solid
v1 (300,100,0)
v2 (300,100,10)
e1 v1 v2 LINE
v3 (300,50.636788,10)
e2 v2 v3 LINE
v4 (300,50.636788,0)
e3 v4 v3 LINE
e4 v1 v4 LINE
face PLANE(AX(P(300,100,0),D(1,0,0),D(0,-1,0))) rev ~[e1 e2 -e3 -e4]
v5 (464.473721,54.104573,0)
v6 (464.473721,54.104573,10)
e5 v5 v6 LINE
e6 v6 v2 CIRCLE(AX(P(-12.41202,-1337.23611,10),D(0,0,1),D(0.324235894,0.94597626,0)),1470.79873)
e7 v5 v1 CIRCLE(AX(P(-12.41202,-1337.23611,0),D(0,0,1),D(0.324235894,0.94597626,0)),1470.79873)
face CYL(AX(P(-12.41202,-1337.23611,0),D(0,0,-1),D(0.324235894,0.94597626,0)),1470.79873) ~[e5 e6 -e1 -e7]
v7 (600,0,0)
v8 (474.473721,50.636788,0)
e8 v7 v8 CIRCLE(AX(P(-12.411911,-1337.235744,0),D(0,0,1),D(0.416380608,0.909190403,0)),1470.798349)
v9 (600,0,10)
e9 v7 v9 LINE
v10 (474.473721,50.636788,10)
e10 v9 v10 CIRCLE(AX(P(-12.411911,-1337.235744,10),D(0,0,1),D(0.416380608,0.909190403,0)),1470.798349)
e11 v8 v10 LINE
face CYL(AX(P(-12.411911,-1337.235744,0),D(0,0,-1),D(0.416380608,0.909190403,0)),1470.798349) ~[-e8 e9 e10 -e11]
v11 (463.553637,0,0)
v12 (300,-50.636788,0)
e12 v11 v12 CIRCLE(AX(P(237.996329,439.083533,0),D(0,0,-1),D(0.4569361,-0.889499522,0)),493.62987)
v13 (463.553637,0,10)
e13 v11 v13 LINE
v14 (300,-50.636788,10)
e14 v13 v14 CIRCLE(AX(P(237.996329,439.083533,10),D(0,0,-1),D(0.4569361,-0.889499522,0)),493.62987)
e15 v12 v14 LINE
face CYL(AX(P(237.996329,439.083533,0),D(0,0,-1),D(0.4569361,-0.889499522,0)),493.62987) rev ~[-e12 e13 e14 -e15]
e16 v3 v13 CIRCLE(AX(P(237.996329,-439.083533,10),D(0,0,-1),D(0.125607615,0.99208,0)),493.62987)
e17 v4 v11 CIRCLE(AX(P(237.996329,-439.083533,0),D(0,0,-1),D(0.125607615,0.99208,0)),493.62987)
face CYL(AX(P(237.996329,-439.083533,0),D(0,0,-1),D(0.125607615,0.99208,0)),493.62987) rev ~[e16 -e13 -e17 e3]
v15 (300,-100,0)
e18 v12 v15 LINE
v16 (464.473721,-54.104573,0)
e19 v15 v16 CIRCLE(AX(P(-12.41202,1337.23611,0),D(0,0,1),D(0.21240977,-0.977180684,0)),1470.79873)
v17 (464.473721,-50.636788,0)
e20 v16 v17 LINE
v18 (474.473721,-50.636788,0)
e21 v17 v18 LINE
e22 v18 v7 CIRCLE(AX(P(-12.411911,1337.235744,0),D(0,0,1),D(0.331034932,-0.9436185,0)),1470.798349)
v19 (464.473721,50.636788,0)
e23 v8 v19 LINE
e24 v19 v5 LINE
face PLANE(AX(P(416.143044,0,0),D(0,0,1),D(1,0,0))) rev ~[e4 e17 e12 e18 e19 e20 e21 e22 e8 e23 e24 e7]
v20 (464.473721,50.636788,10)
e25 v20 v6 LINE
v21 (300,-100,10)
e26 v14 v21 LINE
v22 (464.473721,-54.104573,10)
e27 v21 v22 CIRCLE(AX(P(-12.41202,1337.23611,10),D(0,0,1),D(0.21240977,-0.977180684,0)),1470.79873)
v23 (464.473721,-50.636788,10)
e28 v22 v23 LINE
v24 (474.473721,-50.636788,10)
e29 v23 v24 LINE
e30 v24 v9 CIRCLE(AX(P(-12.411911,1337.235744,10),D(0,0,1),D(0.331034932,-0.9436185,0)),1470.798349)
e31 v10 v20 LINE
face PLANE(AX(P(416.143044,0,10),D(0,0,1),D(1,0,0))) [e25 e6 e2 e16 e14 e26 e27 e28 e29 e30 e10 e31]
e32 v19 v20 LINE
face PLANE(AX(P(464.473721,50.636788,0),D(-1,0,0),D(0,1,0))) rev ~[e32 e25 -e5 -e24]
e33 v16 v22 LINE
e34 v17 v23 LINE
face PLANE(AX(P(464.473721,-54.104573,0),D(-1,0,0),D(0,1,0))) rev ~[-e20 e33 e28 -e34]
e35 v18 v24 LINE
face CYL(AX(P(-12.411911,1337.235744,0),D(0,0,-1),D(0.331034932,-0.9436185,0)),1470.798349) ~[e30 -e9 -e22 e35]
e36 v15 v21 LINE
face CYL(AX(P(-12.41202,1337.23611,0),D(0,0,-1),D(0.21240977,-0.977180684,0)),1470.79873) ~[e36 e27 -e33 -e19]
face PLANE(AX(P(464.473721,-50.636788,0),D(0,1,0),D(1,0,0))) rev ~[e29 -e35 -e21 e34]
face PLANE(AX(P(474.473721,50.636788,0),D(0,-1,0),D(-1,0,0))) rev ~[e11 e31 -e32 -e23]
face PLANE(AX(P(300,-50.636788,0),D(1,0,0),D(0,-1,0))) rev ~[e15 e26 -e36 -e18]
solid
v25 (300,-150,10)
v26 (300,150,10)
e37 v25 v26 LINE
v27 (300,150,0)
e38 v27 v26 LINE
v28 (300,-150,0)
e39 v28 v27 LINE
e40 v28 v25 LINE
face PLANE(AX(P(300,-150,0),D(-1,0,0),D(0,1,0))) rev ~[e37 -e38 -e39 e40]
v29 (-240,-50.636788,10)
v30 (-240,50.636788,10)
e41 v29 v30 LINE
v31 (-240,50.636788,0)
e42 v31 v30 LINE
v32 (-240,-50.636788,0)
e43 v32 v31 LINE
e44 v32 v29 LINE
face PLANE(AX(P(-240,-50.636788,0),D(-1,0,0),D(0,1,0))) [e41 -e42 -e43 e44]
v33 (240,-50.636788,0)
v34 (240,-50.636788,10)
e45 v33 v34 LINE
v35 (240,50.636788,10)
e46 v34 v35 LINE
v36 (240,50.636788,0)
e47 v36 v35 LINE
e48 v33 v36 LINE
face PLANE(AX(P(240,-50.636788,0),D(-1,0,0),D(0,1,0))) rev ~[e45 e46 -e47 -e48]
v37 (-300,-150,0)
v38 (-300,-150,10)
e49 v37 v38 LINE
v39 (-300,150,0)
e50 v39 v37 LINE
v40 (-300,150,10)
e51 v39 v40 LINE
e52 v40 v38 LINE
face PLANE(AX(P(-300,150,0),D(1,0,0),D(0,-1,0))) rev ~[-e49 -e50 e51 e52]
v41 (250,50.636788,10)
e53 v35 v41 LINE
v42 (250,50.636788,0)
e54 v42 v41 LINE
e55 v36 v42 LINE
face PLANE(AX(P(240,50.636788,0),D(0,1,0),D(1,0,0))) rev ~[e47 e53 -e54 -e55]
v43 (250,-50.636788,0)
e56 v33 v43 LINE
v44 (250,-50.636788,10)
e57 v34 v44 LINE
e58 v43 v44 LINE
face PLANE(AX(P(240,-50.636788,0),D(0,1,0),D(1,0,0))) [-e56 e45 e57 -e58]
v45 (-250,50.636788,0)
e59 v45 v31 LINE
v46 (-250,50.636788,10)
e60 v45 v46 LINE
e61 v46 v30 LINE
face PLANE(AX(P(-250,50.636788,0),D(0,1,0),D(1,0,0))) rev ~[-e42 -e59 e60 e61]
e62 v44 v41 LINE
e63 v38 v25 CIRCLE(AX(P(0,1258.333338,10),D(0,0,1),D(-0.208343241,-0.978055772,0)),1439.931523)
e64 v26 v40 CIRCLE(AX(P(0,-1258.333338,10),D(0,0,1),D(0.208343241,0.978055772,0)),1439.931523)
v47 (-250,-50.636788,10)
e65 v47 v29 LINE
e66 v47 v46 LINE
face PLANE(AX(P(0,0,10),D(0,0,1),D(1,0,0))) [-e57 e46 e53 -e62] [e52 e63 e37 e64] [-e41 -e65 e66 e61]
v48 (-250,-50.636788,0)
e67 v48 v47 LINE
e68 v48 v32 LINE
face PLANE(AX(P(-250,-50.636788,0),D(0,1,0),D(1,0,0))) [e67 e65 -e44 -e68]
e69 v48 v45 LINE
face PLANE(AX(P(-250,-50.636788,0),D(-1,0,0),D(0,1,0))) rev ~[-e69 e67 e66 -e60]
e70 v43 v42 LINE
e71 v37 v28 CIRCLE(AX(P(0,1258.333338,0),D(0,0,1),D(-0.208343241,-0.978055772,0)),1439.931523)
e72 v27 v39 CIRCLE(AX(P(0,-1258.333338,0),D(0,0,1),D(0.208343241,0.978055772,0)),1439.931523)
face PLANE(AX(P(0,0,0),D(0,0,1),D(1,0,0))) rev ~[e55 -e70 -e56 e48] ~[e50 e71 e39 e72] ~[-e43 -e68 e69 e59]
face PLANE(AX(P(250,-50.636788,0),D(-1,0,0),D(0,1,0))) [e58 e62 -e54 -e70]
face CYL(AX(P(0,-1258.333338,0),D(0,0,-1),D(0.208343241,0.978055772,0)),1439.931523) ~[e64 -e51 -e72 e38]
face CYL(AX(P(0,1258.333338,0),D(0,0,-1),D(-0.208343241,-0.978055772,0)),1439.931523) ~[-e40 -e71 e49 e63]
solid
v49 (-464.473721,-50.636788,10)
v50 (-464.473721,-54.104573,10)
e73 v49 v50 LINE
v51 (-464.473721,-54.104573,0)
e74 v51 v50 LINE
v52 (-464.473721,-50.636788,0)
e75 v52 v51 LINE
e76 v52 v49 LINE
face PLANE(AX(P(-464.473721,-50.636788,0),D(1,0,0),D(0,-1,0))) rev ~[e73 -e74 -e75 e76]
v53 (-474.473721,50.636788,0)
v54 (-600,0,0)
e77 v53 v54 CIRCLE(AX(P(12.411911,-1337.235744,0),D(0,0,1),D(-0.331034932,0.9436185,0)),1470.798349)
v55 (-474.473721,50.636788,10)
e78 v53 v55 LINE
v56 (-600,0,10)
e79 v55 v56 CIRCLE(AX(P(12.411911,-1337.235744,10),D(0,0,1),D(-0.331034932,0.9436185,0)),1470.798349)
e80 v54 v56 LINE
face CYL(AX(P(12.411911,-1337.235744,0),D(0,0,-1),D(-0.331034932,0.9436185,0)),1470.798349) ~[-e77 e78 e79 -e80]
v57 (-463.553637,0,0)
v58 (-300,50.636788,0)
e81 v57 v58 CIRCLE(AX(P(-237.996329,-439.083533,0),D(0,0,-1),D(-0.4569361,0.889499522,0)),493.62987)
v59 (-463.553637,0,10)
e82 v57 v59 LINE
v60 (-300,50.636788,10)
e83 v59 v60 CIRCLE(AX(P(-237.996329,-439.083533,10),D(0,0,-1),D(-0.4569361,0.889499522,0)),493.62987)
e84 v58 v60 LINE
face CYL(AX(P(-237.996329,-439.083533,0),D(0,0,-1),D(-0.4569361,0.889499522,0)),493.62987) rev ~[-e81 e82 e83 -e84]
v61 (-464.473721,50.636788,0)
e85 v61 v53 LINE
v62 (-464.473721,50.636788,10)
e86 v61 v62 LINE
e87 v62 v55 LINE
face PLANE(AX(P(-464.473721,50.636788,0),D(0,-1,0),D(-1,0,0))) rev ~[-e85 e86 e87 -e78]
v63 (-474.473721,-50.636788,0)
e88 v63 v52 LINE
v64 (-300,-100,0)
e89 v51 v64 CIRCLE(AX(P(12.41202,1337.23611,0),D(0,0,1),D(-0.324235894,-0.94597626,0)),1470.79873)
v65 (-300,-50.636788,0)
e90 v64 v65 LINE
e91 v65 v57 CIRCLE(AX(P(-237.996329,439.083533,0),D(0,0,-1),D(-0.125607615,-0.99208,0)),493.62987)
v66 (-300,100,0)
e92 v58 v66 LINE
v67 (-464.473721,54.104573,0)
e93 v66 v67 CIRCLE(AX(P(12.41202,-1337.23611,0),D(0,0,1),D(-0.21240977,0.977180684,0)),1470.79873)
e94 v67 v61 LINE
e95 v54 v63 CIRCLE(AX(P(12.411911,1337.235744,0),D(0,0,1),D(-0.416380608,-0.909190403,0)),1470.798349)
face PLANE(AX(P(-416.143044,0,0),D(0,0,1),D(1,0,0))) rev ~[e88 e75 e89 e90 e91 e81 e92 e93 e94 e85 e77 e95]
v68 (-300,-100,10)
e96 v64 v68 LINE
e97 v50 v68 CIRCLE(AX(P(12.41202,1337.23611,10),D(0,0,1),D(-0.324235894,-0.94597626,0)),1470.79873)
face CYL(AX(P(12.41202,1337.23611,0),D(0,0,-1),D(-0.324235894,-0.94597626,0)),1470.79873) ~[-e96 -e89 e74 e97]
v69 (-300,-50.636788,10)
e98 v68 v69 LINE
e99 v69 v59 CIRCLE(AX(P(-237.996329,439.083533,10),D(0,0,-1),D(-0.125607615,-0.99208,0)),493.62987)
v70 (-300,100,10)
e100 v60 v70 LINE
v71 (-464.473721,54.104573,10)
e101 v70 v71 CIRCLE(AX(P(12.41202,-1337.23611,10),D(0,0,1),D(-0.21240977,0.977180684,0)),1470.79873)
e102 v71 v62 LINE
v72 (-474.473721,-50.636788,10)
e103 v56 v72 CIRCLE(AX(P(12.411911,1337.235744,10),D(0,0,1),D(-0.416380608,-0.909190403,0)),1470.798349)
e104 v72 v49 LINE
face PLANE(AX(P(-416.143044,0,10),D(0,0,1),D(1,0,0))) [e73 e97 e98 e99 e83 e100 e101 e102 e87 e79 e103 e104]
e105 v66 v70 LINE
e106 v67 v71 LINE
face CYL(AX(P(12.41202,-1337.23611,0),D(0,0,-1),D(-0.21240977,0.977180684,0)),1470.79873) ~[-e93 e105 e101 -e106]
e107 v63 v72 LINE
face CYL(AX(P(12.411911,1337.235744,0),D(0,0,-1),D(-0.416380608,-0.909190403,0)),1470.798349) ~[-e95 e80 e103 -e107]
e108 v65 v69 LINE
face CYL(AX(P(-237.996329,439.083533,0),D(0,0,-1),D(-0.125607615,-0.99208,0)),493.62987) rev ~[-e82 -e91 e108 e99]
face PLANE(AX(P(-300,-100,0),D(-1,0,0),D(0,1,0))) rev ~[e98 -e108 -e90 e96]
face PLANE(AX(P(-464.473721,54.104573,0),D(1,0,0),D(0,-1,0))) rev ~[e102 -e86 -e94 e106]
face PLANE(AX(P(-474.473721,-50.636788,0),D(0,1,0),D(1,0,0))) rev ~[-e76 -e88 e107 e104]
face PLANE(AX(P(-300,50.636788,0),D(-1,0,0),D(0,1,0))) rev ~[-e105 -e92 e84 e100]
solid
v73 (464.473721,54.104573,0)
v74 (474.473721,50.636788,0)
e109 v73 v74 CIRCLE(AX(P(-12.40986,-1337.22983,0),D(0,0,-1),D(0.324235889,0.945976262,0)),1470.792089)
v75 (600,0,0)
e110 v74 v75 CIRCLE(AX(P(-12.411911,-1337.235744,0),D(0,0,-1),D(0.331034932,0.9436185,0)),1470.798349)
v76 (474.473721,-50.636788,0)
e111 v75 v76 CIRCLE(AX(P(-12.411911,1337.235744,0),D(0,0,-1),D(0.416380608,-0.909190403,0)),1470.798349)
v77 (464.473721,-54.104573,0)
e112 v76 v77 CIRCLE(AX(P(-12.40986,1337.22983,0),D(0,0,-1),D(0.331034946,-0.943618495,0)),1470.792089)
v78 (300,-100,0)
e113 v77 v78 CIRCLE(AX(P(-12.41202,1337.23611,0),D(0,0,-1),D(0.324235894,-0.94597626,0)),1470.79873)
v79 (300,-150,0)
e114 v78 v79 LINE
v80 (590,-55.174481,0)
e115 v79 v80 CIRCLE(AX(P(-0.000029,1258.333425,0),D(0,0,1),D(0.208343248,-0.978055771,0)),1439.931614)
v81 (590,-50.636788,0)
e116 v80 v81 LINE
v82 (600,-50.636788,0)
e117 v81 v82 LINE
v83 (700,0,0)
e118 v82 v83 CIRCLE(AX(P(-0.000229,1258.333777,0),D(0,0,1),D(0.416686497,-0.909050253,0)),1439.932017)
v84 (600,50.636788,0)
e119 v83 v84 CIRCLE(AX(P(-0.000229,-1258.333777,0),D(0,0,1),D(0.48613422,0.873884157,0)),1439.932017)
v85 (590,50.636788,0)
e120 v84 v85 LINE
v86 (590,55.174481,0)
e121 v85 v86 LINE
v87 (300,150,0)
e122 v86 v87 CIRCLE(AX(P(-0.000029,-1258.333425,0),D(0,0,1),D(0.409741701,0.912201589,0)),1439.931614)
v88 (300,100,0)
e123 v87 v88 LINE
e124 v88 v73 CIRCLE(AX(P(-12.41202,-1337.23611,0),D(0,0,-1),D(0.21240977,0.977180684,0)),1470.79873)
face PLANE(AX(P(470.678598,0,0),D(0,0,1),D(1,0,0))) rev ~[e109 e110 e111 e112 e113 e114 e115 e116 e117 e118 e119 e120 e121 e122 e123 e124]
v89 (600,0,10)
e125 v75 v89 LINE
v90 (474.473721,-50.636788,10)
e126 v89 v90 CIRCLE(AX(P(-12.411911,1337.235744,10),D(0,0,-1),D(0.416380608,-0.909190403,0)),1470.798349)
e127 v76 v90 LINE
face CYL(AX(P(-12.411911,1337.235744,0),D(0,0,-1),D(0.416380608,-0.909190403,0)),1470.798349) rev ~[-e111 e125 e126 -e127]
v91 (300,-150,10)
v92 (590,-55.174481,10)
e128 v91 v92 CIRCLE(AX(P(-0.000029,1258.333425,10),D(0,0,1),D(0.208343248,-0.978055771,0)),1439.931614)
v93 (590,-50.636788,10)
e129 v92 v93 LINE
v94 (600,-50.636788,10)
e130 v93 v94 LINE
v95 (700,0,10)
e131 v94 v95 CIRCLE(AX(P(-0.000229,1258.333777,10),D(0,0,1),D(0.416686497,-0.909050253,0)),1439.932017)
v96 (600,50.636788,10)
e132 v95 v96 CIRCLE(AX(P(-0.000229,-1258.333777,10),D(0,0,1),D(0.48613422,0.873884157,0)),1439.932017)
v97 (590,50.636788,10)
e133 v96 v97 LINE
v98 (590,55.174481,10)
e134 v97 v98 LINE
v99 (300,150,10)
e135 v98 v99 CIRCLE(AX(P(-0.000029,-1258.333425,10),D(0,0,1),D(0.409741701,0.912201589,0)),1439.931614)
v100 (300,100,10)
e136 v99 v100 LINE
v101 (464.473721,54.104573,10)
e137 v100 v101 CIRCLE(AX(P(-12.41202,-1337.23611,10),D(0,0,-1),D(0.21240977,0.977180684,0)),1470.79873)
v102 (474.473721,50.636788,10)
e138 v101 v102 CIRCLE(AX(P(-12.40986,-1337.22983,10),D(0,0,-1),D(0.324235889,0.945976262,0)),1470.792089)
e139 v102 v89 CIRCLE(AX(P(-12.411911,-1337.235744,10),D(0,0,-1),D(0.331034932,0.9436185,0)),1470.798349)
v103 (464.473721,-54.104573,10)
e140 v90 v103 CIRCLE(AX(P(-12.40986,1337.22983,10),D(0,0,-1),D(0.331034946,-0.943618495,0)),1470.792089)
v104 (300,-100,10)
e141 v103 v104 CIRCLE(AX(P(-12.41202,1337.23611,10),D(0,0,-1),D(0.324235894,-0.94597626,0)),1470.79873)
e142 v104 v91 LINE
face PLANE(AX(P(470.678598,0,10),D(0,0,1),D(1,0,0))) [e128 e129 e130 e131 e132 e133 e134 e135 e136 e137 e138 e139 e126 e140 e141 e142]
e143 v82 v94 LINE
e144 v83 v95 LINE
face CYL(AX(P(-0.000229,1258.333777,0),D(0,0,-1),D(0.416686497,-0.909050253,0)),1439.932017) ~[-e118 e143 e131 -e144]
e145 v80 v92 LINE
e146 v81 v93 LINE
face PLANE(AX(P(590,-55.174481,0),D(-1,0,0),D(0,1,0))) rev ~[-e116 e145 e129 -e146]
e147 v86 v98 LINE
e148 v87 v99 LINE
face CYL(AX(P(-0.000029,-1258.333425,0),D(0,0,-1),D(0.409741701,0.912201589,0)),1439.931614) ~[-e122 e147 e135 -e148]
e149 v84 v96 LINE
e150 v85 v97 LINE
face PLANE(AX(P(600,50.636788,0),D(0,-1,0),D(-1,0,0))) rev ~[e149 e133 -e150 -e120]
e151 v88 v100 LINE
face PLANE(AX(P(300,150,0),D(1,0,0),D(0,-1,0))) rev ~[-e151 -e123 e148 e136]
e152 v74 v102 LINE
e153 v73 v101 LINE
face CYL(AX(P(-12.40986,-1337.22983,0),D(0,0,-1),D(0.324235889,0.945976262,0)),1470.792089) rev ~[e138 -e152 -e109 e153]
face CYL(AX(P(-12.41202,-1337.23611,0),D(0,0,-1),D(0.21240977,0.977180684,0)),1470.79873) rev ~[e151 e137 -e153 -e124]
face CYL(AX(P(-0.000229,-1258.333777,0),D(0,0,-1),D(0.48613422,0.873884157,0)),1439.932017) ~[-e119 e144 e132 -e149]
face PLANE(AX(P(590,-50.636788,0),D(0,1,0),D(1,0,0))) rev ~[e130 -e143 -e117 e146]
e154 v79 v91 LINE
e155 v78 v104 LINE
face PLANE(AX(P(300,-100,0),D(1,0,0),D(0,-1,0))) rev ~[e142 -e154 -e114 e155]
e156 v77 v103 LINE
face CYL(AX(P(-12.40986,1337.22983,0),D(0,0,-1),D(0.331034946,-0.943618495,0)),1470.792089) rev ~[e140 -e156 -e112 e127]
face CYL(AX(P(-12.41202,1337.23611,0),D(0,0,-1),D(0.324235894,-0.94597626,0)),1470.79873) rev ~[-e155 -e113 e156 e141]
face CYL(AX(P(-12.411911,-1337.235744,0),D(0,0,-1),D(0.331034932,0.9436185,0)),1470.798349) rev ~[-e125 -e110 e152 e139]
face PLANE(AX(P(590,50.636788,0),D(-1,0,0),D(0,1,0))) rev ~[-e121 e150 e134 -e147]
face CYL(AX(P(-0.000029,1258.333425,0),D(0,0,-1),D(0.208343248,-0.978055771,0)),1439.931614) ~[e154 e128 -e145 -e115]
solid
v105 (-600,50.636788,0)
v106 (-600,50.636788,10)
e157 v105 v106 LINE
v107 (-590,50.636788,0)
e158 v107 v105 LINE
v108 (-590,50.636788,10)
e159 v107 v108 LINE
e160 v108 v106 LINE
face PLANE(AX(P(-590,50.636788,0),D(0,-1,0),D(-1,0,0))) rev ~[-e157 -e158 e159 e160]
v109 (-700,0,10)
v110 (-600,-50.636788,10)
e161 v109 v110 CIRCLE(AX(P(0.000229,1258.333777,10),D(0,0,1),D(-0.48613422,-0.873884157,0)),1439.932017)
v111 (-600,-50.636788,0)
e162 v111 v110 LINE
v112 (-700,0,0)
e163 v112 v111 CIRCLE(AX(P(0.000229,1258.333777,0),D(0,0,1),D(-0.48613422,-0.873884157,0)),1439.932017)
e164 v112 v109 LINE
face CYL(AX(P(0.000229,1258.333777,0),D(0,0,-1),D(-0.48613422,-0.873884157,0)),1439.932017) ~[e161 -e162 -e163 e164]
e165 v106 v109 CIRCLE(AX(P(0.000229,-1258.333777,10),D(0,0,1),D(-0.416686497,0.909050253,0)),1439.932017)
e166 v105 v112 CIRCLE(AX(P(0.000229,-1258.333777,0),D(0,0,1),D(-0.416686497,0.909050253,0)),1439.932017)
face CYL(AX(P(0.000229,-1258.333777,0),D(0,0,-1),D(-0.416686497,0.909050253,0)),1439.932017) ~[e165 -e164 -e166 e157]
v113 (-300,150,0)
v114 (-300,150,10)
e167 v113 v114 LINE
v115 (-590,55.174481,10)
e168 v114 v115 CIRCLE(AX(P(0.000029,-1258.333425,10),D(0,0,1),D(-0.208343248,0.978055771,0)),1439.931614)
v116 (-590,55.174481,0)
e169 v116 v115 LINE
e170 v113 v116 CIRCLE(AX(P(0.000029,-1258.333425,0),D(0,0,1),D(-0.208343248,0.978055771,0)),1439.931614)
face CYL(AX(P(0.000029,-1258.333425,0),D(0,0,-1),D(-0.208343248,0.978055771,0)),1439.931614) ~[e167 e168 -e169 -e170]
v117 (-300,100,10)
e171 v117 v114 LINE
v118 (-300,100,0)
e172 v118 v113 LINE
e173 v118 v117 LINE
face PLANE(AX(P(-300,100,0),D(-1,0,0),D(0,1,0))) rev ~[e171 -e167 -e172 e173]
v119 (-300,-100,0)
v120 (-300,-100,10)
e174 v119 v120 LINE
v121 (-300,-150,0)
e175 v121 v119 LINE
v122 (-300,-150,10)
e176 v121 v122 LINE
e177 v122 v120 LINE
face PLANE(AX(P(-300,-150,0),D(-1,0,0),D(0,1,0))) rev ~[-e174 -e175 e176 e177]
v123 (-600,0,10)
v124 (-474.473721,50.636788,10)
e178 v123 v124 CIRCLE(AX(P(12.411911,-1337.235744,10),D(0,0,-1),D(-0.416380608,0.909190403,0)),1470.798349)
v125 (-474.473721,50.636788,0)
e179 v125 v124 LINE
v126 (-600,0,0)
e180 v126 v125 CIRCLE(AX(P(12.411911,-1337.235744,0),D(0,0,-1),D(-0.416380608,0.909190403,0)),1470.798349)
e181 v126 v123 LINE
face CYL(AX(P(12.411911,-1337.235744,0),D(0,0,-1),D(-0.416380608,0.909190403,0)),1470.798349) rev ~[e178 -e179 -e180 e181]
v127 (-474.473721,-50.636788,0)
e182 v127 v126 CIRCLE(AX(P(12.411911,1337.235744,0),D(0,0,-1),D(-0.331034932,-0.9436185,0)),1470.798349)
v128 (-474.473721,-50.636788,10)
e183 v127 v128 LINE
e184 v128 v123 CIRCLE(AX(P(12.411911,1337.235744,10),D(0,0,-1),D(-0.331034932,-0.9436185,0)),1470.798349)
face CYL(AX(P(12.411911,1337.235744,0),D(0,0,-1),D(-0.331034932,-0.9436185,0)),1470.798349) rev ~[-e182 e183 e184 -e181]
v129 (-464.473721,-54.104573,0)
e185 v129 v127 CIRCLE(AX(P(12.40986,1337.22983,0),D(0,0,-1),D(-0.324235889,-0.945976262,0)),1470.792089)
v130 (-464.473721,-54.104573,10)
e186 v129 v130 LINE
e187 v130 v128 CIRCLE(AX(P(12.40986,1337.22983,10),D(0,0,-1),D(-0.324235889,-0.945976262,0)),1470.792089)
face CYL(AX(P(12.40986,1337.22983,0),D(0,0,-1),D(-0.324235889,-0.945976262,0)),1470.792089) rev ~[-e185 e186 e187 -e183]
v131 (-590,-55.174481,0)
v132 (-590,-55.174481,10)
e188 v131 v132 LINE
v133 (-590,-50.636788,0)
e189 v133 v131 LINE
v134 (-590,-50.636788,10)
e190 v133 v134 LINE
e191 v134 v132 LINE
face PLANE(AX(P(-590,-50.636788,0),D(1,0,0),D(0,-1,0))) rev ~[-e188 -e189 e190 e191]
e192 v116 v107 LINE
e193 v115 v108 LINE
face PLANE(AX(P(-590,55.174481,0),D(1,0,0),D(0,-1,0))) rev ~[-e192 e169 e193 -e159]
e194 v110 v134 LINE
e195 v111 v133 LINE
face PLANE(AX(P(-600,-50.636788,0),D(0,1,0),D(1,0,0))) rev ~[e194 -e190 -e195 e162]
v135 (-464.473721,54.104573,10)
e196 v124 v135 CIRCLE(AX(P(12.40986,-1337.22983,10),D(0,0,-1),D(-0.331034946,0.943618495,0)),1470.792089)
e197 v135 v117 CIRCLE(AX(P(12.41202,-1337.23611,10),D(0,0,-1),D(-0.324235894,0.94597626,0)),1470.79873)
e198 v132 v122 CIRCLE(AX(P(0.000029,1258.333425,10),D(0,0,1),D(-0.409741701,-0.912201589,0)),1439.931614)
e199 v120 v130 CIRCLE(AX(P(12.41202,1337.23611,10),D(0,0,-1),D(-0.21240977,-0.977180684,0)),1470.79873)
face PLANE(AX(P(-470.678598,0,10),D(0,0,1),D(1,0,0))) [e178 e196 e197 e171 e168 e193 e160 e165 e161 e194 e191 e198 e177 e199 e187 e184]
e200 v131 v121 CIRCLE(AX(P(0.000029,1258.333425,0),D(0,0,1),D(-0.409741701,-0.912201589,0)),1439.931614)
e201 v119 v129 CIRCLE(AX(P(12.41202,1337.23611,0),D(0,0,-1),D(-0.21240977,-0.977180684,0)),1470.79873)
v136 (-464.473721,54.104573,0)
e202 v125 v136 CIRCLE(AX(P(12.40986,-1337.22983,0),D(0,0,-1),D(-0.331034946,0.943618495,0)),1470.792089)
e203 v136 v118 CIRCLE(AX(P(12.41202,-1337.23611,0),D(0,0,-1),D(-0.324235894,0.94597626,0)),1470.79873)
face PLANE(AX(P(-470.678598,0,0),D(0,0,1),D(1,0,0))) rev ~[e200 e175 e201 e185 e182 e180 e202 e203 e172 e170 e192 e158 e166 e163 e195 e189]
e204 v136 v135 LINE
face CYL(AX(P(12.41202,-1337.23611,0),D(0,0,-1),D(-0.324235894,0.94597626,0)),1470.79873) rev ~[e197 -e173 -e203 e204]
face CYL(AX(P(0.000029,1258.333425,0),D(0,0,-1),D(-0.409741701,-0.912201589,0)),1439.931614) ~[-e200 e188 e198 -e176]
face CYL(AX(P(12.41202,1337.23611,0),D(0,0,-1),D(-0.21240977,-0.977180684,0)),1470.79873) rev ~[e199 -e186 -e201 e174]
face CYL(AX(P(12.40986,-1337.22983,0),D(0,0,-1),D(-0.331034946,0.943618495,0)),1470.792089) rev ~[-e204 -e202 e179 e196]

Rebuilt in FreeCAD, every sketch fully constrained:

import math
import FreeCAD as App
import Part
import Sketcher
Q = App.Units.Quantity

doc = App.newDocument("Part")
body = doc.addObject("PartDesign::Body", "Body")
body.AllowCompound = True

sketch1 = body.newObject("Sketcher::SketchObject", "Sketch")
sketch1.AttachmentSupport = (doc.getObject("XY_Plane"), [""])
sketch1.MapMode = "FlatFace"
sketch1.addGeometry(Part.ArcOfCircle(Part.Circle(App.Vector(-0.000029, -1258.333425, 0), App.Vector(0, 0, 1), 1439.931614), math.radians(65.81139), math.radians(77.97472)), False)
sketch1.addGeometry(Part.LineSegment(App.Vector(300, 150, 0), App.Vector(300, 100, 0)), False)
sketch1.addGeometry(Part.ArcOfCircle(Part.Circle(App.Vector(-12.41202, -1337.23611, 0), App.Vector(0, 0, 1), 1470.79873), math.radians(71.080712), math.radians(77.736392)), False)
sketch1.addGeometry(Part.ArcOfCircle(Part.Circle(App.Vector(-12.40986, -1337.22983, 0), App.Vector(0, 0, 1), 1470.792089), math.radians(70.668395), math.radians(71.080712)), False)
sketch1.addGeometry(Part.ArcOfCircle(Part.Circle(App.Vector(-12.411911, -1337.235744, 0), App.Vector(0, 0, 1), 1470.798349), math.radians(65.39371), math.radians(70.668396)), False)
sketch1.addGeometry(Part.ArcOfCircle(Part.Circle(App.Vector(-12.411911, 1337.235744, 0), App.Vector(0, 0, 1), 1470.798349), math.radians(-70.668396), math.radians(-65.39371)), False)
sketch1.addGeometry(Part.ArcOfCircle(Part.Circle(App.Vector(-12.40986, 1337.22983, 0), App.Vector(0, 0, 1), 1470.792089), math.radians(-71.080712), math.radians(-70.668395)), False)
sketch1.addGeometry(Part.ArcOfCircle(Part.Circle(App.Vector(-12.41202, 1337.23611, 0), App.Vector(0, 0, 1), 1470.79873), math.radians(-77.736392), math.radians(-71.080712)), False)
sketch1.addGeometry(Part.LineSegment(App.Vector(300, -100, 0), App.Vector(300, -150, 0)), False)
sketch1.addGeometry(Part.ArcOfCircle(Part.Circle(App.Vector(-0.000029, 1258.333425, 0), App.Vector(0, 0, 1), 1439.931614), math.radians(-77.97472), math.radians(-65.81139)), False)
sketch1.addGeometry(Part.LineSegment(App.Vector(590, -55.174481, 0), App.Vector(590, -50.636788, 0)), False)
sketch1.addGeometry(Part.LineSegment(App.Vector(590, -50.636788, 0), App.Vector(600, -50.636788, 0)), False)
sketch1.addGeometry(Part.ArcOfCircle(Part.Circle(App.Vector(-0.000229, 1258.333777, 0), App.Vector(0, 0, 1), 1439.932017), math.radians(-65.374432), math.radians(-60.91319)), False)
sketch1.addGeometry(Part.ArcOfCircle(Part.Circle(App.Vector(-0.000229, -1258.333777, 0), App.Vector(0, 0, 1), 1439.932017), math.radians(60.91319), math.radians(65.374432)), False)
sketch1.addGeometry(Part.LineSegment(App.Vector(600, 50.636788, 0), App.Vector(590, 50.636788, 0)), False)
sketch1.addGeometry(Part.LineSegment(App.Vector(590, 50.636788, 0), App.Vector(590, 55.174481, 0)), False)
sketch1.addGeometry(Part.LineSegment(App.Vector(-300, 100, 0), App.Vector(-300, 150, 0)), False)
sketch1.addGeometry(Part.ArcOfCircle(Part.Circle(App.Vector(0.000029, -1258.333425, 0), App.Vector(0, 0, 1), 1439.931614), math.radians(102.02528), math.radians(114.18861)), False)
sketch1.addGeometry(Part.LineSegment(App.Vector(-590, 55.174481, 0), App.Vector(-590, 50.636788, 0)), False)
sketch1.addGeometry(Part.LineSegment(App.Vector(-590, 50.636788, 0), App.Vector(-600, 50.636788, 0)), False)
sketch1.addGeometry(Part.ArcOfCircle(Part.Circle(App.Vector(0.000229, -1258.333777, 0), App.Vector(0, 0, 1), 1439.932017), math.radians(114.625568), math.radians(119.08681)), False)
sketch1.addGeometry(Part.ArcOfCircle(Part.Circle(App.Vector(0.000229, 1258.333777, 0), App.Vector(0, 0, 1), 1439.932017), math.radians(-119.08681), math.radians(-114.625568)), False)
sketch1.addGeometry(Part.LineSegment(App.Vector(-600, -50.636788, 0), App.Vector(-590, -50.636788, 0)), False)
sketch1.addGeometry(Part.LineSegment(App.Vector(-590, -50.636788, 0), App.Vector(-590, -55.174481, 0)), False)
sketch1.addGeometry(Part.ArcOfCircle(Part.Circle(App.Vector(0.000029, 1258.333425, 0), App.Vector(0, 0, 1), 1439.931614), math.radians(-114.18861), math.radians(-102.02528)), False)
sketch1.addGeometry(Part.LineSegment(App.Vector(-300, -150, 0), App.Vector(-300, -100, 0)), False)
sketch1.addGeometry(Part.ArcOfCircle(Part.Circle(App.Vector(12.41202, 1337.23611, 0), App.Vector(0, 0, 1), 1470.79873), math.radians(-108.919288), math.radians(-102.263608)), False)
sketch1.addGeometry(Part.ArcOfCircle(Part.Circle(App.Vector(12.40986, 1337.22983, 0), App.Vector(0, 0, 1), 1470.792089), math.radians(-109.331605), math.radians(-108.919288)), False)
sketch1.addGeometry(Part.ArcOfCircle(Part.Circle(App.Vector(12.411911, 1337.235744, 0), App.Vector(0, 0, 1), 1470.798349), math.radians(-114.60629), math.radians(-109.331604)), False)
sketch1.addGeometry(Part.ArcOfCircle(Part.Circle(App.Vector(12.411911, -1337.235744, 0), App.Vector(0, 0, 1), 1470.798349), math.radians(109.331604), math.radians(114.60629)), False)
sketch1.addGeometry(Part.ArcOfCircle(Part.Circle(App.Vector(12.40986, -1337.22983, 0), App.Vector(0, 0, 1), 1470.792089), math.radians(108.919288), math.radians(109.331605)), False)
sketch1.addGeometry(Part.ArcOfCircle(Part.Circle(App.Vector(12.41202, -1337.23611, 0), App.Vector(0, 0, 1), 1470.79873), math.radians(102.263608), math.radians(108.919288)), False)
sketch1.addConstraint(Sketcher.Constraint("Coincident", 0, 2, 1, 1))
sketch1.addConstraint(Sketcher.Constraint("Coincident", 1, 2, 2, 2))
sketch1.addConstraint(Sketcher.Constraint("Coincident", 2, 1, 3, 2))
sketch1.addConstraint(Sketcher.Constraint("Coincident", 3, 1, 4, 2))
sketch1.addConstraint(Sketcher.Constraint("Coincident", 4, 1, 5, 2))
sketch1.addConstraint(Sketcher.Constraint("Coincident", 5, 1, 6, 2))
sketch1.addConstraint(Sketcher.Constraint("Coincident", 6, 1, 7, 2))
sketch1.addConstraint(Sketcher.Constraint("Coincident", 7, 1, 8, 1))
sketch1.addConstraint(Sketcher.Constraint("Coincident", 8, 2, 9, 1))
sketch1.addConstraint(Sketcher.Constraint("Coincident", 9, 2, 10, 1))
sketch1.addConstraint(Sketcher.Constraint("Coincident", 10, 2, 11, 1))
sketch1.addConstraint(Sketcher.Constraint("Coincident", 11, 2, 12, 1))
sketch1.addConstraint(Sketcher.Constraint("Coincident", 12, 2, 13, 1))
sketch1.addConstraint(Sketcher.Constraint("Coincident", 13, 2, 14, 1))
sketch1.addConstraint(Sketcher.Constraint("Coincident", 14, 2, 15, 1))
sketch1.addConstraint(Sketcher.Constraint("Coincident", 15, 2, 0, 1))
sketch1.addConstraint(Sketcher.Constraint("Coincident", 16, 2, 17, 1))
sketch1.addConstraint(Sketcher.Constraint("Coincident", 17, 2, 18, 1))
sketch1.addConstraint(Sketcher.Constraint("Coincident", 18, 2, 19, 1))
sketch1.addConstraint(Sketcher.Constraint("Coincident", 19, 2, 20, 1))
sketch1.addConstraint(Sketcher.Constraint("Coincident", 20, 2, 21, 1))
sketch1.addConstraint(Sketcher.Constraint("Coincident", 21, 2, 22, 1))
sketch1.addConstraint(Sketcher.Constraint("Coincident", 22, 2, 23, 1))
sketch1.addConstraint(Sketcher.Constraint("Coincident", 23, 2, 24, 1))
sketch1.addConstraint(Sketcher.Constraint("Coincident", 24, 2, 25, 1))
sketch1.addConstraint(Sketcher.Constraint("Coincident", 25, 2, 26, 2))
sketch1.addConstraint(Sketcher.Constraint("Coincident", 26, 1, 27, 2))
sketch1.addConstraint(Sketcher.Constraint("Coincident", 27, 1, 28, 2))
sketch1.addConstraint(Sketcher.Constraint("Coincident", 28, 1, 29, 2))
sketch1.addConstraint(Sketcher.Constraint("Coincident", 29, 1, 30, 2))
sketch1.addConstraint(Sketcher.Constraint("Coincident", 30, 1, 31, 2))
sketch1.addConstraint(Sketcher.Constraint("Coincident", 31, 1, 16, 1))
sketch1.addConstraint(Sketcher.Constraint("Vertical", 1))
sketch1.addConstraint(Sketcher.Constraint("Vertical", 8))
sketch1.addConstraint(Sketcher.Constraint("Vertical", 10))
sketch1.addConstraint(Sketcher.Constraint("Horizontal", 11))
sketch1.addConstraint(Sketcher.Constraint("Horizontal", 14))
sketch1.addConstraint(Sketcher.Constraint("Vertical", 15))
sketch1.addConstraint(Sketcher.Constraint("Vertical", 16))
sketch1.addConstraint(Sketcher.Constraint("Vertical", 18))
sketch1.addConstraint(Sketcher.Constraint("Horizontal", 19))
sketch1.addConstraint(Sketcher.Constraint("Horizontal", 22))
sketch1.addConstraint(Sketcher.Constraint("Vertical", 23))
sketch1.addConstraint(Sketcher.Constraint("Vertical", 25))
sketch1.addConstraint(Sketcher.Constraint("Equal", 4, 5))
sketch1.addConstraint(Sketcher.Constraint("Equal", 3, 6))
sketch1.addConstraint(Sketcher.Constraint("Equal", 2, 7))
sketch1.addConstraint(Sketcher.Constraint("Equal", 0, 9))
sketch1.addConstraint(Sketcher.Constraint("Equal", 12, 13))
sketch1.addConstraint(Sketcher.Constraint("Equal", 9, 17))
sketch1.addConstraint(Sketcher.Constraint("Equal", 13, 20))
sketch1.addConstraint(Sketcher.Constraint("Equal", 20, 21))
sketch1.addConstraint(Sketcher.Constraint("Equal", 17, 24))
sketch1.addConstraint(Sketcher.Constraint("Equal", 7, 26))
sketch1.addConstraint(Sketcher.Constraint("Equal", 6, 27))
sketch1.addConstraint(Sketcher.Constraint("Equal", 5, 28))
sketch1.addConstraint(Sketcher.Constraint("Equal", 28, 29))
sketch1.addConstraint(Sketcher.Constraint("Equal", 27, 30))
sketch1.addConstraint(Sketcher.Constraint("Equal", 26, 31))
sketch1.addConstraint(Sketcher.Constraint("Symmetric", 9, 3, 17, 3, -1, 1))
sketch1.addConstraint(Sketcher.Constraint("Symmetric", 12, 3, 20, 3, -1, 1))
sketch1.addConstraint(Sketcher.Constraint("Symmetric", 13, 3, 21, 3, -1, 1))
sketch1.addConstraint(Sketcher.Constraint("Symmetric", 0, 3, 24, 3, -1, 1))
sketch1.addConstraint(Sketcher.Constraint("Symmetric", 2, 3, 26, 3, -1, 1))
sketch1.addConstraint(Sketcher.Constraint("Symmetric", 4, 3, 28, 3, -1, 1))
sketch1.addConstraint(Sketcher.Constraint("Symmetric", 5, 3, 29, 3, -1, 1))
sketch1.addConstraint(Sketcher.Constraint("Symmetric", 7, 3, 31, 3, -1, 1))
sketch1.addConstraint(Sketcher.Constraint("Symmetric", 10, 2, 18, 2, -1, 1))
sketch1.addConstraint(Sketcher.Constraint("Symmetric", 14, 2, 22, 2, -1, 1))
sketch1.addConstraint(Sketcher.Constraint("Symmetric", 0, 3, 17, 3, -2))
sketch1.addConstraint(Sketcher.Constraint("Symmetric", 13, 3, 20, 3, -2))
sketch1.addConstraint(Sketcher.Constraint("Symmetric", 7, 3, 26, 3, -2))
sketch1.addConstraint(Sketcher.Constraint("Symmetric", 5, 3, 28, 3, -2))
sketch1.addConstraint(Sketcher.Constraint("Symmetric", 14, 2, 18, 2, -2))
sketch1.addConstraint(Sketcher.Constraint("Horizontal", 5, 1, 10, 2))
sketch1.addConstraint(Sketcher.Constraint("Horizontal", 3, 1, 13, 2))
sketch1.addConstraint(Sketcher.Constraint("Horizontal", 6, 1, 26, 1))
sketch1.addConstraint(Sketcher.Constraint("Horizontal", 22, 2, 27, 1))
sketch1.addConstraint(Sketcher.Constraint("Horizontal", 19, 2, 29, 1))
sketch1.addConstraint(Sketcher.Constraint("Horizontal", 2, 1, 30, 1))
sketch1.addConstraint(Sketcher.Constraint("Vertical", 2, 1, 6, 1))
sketch1.addConstraint(Sketcher.Constraint("Equal", 1, 8))
sketch1.addConstraint(Sketcher.Constraint("Equal", 16, 25))
sketch1.addConstraint(Sketcher.Constraint("DistanceX", 11, 1, 11, 2, Q("10 mm")))
sketch1.addConstraint(Sketcher.Constraint("DistanceY", 1, 2, 1, 1, Q("50 mm")))
sketch1.addConstraint(Sketcher.Constraint("DistanceY", 16, 1, 16, 2, Q("50 mm")))
sketch1.addConstraint(Sketcher.Constraint("DistanceX", -1, 1, 1, 2, Q("300 mm")))
sketch1.addConstraint(Sketcher.Constraint("DistanceY", -1, 1, 1, 2, Q("100 mm")))
sketch1.addConstraint(Sketcher.Constraint("DistanceX", -1, 1, 10, 2, Q("590 mm")))
sketch1.addConstraint(Sketcher.Constraint("DistanceX", 2, 1, 3, 1, Q("10 mm")))
sketch1.addConstraint(Sketcher.Constraint("Radius", 2, Q("1470.79873 mm")))
sketch1.addConstraint(Sketcher.Constraint("Radius", 3, Q("1470.792089 mm")))
sketch1.addConstraint(Sketcher.Constraint("Radius", 4, Q("1470.798349 mm")))
sketch1.addConstraint(Sketcher.Constraint("Radius", 0, Q("1439.931614 mm")))
sketch1.addConstraint(Sketcher.Constraint("Radius", 12, Q("1439.932017 mm")))
sketch1.addConstraint(Sketcher.Constraint("DistanceX", 12, 3, 9, 3, Q("0.0002 mm")))
sketch1.addConstraint(Sketcher.Constraint("DistanceY", 0, 3, 12, 3, Q("2516.667202 mm")))
sketch1.addConstraint(Sketcher.Constraint("DistanceY", 10, 1, 10, 2, Q("4.537693 mm")))
sketch1.addConstraint(Sketcher.Constraint("DistanceX", 2, 3, -1, 1, Q("12.41202 mm")))
sketch1.addConstraint(Sketcher.Constraint("DistanceX", 3, 3, -1, 1, Q("12.40986 mm")))
sketch1.addConstraint(Sketcher.Constraint("DistanceX", 4, 3, -1, 1, Q("12.411911 mm")))
pad1 = body.newObject("PartDesign::Pad", "Pad")
pad1.Profile = sketch1
pad1.Length = 10
body2 = doc.addObject("PartDesign::Body", "Body001")

sketch2 = body2.newObject("Sketcher::SketchObject", "Sketch001")
sketch2.AttachmentSupport = (doc.getObject("XY_Plane001"), [""])
sketch2.MapMode = "FlatFace"
sketch2.addGeometry(Part.ArcOfCircle(Part.Circle(App.Vector(0, -1258, 0), App.Vector(0, 0, 1), 1440), math.radians(78), math.radians(102)), False)
sketch2.addGeometry(Part.LineSegment(App.Vector(-300, 150, 0), App.Vector(-300, -150, 0)), False)
sketch2.addGeometry(Part.ArcOfCircle(Part.Circle(App.Vector(0, 1258, 0), App.Vector(0, 0, 1), 1440), math.radians(-102), math.radians(-78)), False)
sketch2.addGeometry(Part.LineSegment(App.Vector(300, -150, 0), App.Vector(300, 150, 0)), False)
sketch2.addGeometry(Part.LineSegment(App.Vector(-240, -51, 0), App.Vector(-250, -51, 0)), False)
sketch2.addGeometry(Part.LineSegment(App.Vector(-250, -51, 0), App.Vector(-250, 51, 0)), False)
sketch2.addGeometry(Part.LineSegment(App.Vector(-250, 51, 0), App.Vector(-240, 51, 0)), False)
sketch2.addGeometry(Part.LineSegment(App.Vector(-240, 51, 0), App.Vector(-240, -51, 0)), False)
sketch2.addGeometry(Part.LineSegment(App.Vector(250, -51, 0), App.Vector(240, -51, 0)), False)
sketch2.addGeometry(Part.LineSegment(App.Vector(240, -51, 0), App.Vector(240, 51, 0)), False)
sketch2.addGeometry(Part.LineSegment(App.Vector(240, 51, 0), App.Vector(250, 51, 0)), False)
sketch2.addGeometry(Part.LineSegment(App.Vector(250, 51, 0), App.Vector(250, -51, 0)), False)
sketch2.addConstraint(Sketcher.Constraint("Coincident", 0, 2, 1, 1))
sketch2.addConstraint(Sketcher.Constraint("Coincident", 1, 2, 2, 1))
sketch2.addConstraint(Sketcher.Constraint("Coincident", 2, 2, 3, 1))
sketch2.addConstraint(Sketcher.Constraint("Coincident", 3, 2, 0, 1))
sketch2.addConstraint(Sketcher.Constraint("Coincident", 4, 2, 5, 1))
sketch2.addConstraint(Sketcher.Constraint("Coincident", 5, 2, 6, 1))
sketch2.addConstraint(Sketcher.Constraint("Coincident", 6, 2, 7, 1))
sketch2.addConstraint(Sketcher.Constraint("Coincident", 7, 2, 4, 1))
sketch2.addConstraint(Sketcher.Constraint("Coincident", 8, 2, 9, 1))
sketch2.addConstraint(Sketcher.Constraint("Coincident", 9, 2, 10, 1))
sketch2.addConstraint(Sketcher.Constraint("Coincident", 10, 2, 11, 1))
sketch2.addConstraint(Sketcher.Constraint("Coincident", 11, 2, 8, 1))
sketch2.addConstraint(Sketcher.Constraint("Vertical", 1))
sketch2.addConstraint(Sketcher.Constraint("Vertical", 3))
sketch2.addConstraint(Sketcher.Constraint("Horizontal", 4))
sketch2.addConstraint(Sketcher.Constraint("Vertical", 5))
sketch2.addConstraint(Sketcher.Constraint("Horizontal", 6))
sketch2.addConstraint(Sketcher.Constraint("Vertical", 7))
sketch2.addConstraint(Sketcher.Constraint("Horizontal", 8))
sketch2.addConstraint(Sketcher.Constraint("Vertical", 9))
sketch2.addConstraint(Sketcher.Constraint("Horizontal", 10))
sketch2.addConstraint(Sketcher.Constraint("Vertical", 11))
sketch2.addConstraint(Sketcher.Constraint("Equal", 0, 2))
sketch2.addConstraint(Sketcher.Constraint("Symmetric", 0, 3, 2, 3, -1, 1))
sketch2.addConstraint(Sketcher.Constraint("Symmetric", 6, 2, 8, 2, -1, 1))
sketch2.addConstraint(Sketcher.Constraint("Symmetric", 4, 2, 10, 2, -1, 1))
sketch2.addConstraint(Sketcher.Constraint("PointOnObject", 0, 3, -2))
sketch2.addConstraint(Sketcher.Constraint("Horizontal", 7, 2, 8, 2))
sketch2.addConstraint(Sketcher.Constraint("Equal", 1, 3))
sketch2.addConstraint(Sketcher.Constraint("DistanceX", 4, 2, 4, 1, Q("10 mm")))
sketch2.addConstraint(Sketcher.Constraint("DistanceY", 1, 2, 1, 1, Q("300 mm")))
sketch2.addConstraint(Sketcher.Constraint("DistanceX", 1, 2, -1, 1, Q("300 mm")))
sketch2.addConstraint(Sketcher.Constraint("DistanceX", 4, 2, -1, 1, Q("250 mm")))
sketch2.addConstraint(Sketcher.Constraint("Radius", 0, Q("1439.931523 mm")))
sketch2.addConstraint(Sketcher.Constraint("DistanceY", 5, 1, 5, 2, Q("101.273576 mm")))
pad2 = body2.newObject("PartDesign::Pad", "Pad001")
pad2.Profile = sketch2
pad2.Length = 10
body3 = doc.addObject("PartDesign::Body", "Body002")
body3.AllowCompound = True

sketch3 = body3.newObject("Sketcher::SketchObject", "Sketch002")
sketch3.AttachmentSupport = (doc.getObject("XY_Plane002"), [""])
sketch3.MapMode = "FlatFace"
sketch3.addGeometry(Part.LineSegment(App.Vector(-300, 50.6, 0), App.Vector(-300, 100, 0)), False)
sketch3.addGeometry(Part.ArcOfCircle(Part.Circle(App.Vector(12.4, -1337.2, 0), App.Vector(0, 0, 1), 1470.8), math.radians(102.26), math.radians(108.92)), False)
sketch3.addGeometry(Part.LineSegment(App.Vector(-464.5, 54.1, 0), App.Vector(-464.5, 50.6, 0)), False)
sketch3.addGeometry(Part.LineSegment(App.Vector(-464.5, 50.6, 0), App.Vector(-474.5, 50.6, 0)), False)
sketch3.addGeometry(Part.ArcOfCircle(Part.Circle(App.Vector(12.4, -1337.2, 0), App.Vector(0, 0, 1), 1470.8), math.radians(109.33), math.radians(114.61)), False)
sketch3.addGeometry(Part.ArcOfCircle(Part.Circle(App.Vector(12.4, 1337.2, 0), App.Vector(0, 0, 1), 1470.8), math.radians(-114.61), math.radians(-109.33)), False)
sketch3.addGeometry(Part.LineSegment(App.Vector(-474.5, -50.6, 0), App.Vector(-464.5, -50.6, 0)), False)
sketch3.addGeometry(Part.LineSegment(App.Vector(-464.5, -50.6, 0), App.Vector(-464.5, -54.1, 0)), False)
sketch3.addGeometry(Part.ArcOfCircle(Part.Circle(App.Vector(12.4, 1337.2, 0), App.Vector(0, 0, 1), 1470.8), math.radians(-108.92), math.radians(-102.26)), False)
sketch3.addGeometry(Part.LineSegment(App.Vector(-300, -100, 0), App.Vector(-300, -50.6, 0)), False)
sketch3.addGeometry(Part.ArcOfCircle(Part.Circle(App.Vector(-238, 439.1, 0), App.Vector(0, 0, 1), 493.6), math.radians(-117.19), math.radians(-97.22)), False)
sketch3.addGeometry(Part.ArcOfCircle(Part.Circle(App.Vector(-238, -439.1, 0), App.Vector(0, 0, 1), 493.6), math.radians(97.22), math.radians(117.19)), False)
sketch3.addGeometry(Part.ArcOfCircle(Part.Circle(App.Vector(-12.4, -1337.2, 0), App.Vector(0, 0, 1), 1470.8), math.radians(71.08), math.radians(77.74)), False)
sketch3.addGeometry(Part.LineSegment(App.Vector(300, 100, 0), App.Vector(300, 50.6, 0)), False)
sketch3.addGeometry(Part.ArcOfCircle(Part.Circle(App.Vector(238, -439.1, 0), App.Vector(0, 0, 1), 493.6), math.radians(62.81), math.radians(82.78)), False)
sketch3.addGeometry(Part.ArcOfCircle(Part.Circle(App.Vector(238, 439.1, 0), App.Vector(0, 0, 1), 493.6), math.radians(-82.78), math.radians(-62.81)), False)
sketch3.addGeometry(Part.LineSegment(App.Vector(300, -50.6, 0), App.Vector(300, -100, 0)), False)
sketch3.addGeometry(Part.ArcOfCircle(Part.Circle(App.Vector(-12.4, 1337.2, 0), App.Vector(0, 0, 1), 1470.8), math.radians(-77.74), math.radians(-71.08)), False)
sketch3.addGeometry(Part.LineSegment(App.Vector(464.5, -54.1, 0), App.Vector(464.5, -50.6, 0)), False)
sketch3.addGeometry(Part.LineSegment(App.Vector(464.5, -50.6, 0), App.Vector(474.5, -50.6, 0)), False)
sketch3.addGeometry(Part.ArcOfCircle(Part.Circle(App.Vector(-12.4, 1337.2, 0), App.Vector(0, 0, 1), 1470.8), math.radians(-70.67), math.radians(-65.39)), False)
sketch3.addGeometry(Part.ArcOfCircle(Part.Circle(App.Vector(-12.4, -1337.2, 0), App.Vector(0, 0, 1), 1470.8), math.radians(65.39), math.radians(70.67)), False)
sketch3.addGeometry(Part.LineSegment(App.Vector(474.5, 50.6, 0), App.Vector(464.5, 50.6, 0)), False)
sketch3.addGeometry(Part.LineSegment(App.Vector(464.5, 50.6, 0), App.Vector(464.5, 54.1, 0)), False)
sketch3.addConstraint(Sketcher.Constraint("Coincident", 0, 2, 1, 1))
sketch3.addConstraint(Sketcher.Constraint("Coincident", 1, 2, 2, 1))
sketch3.addConstraint(Sketcher.Constraint("Coincident", 2, 2, 3, 1))
sketch3.addConstraint(Sketcher.Constraint("Coincident", 3, 2, 4, 1))
sketch3.addConstraint(Sketcher.Constraint("Coincident", 4, 2, 5, 1))
sketch3.addConstraint(Sketcher.Constraint("Coincident", 5, 2, 6, 1))
sketch3.addConstraint(Sketcher.Constraint("Coincident", 6, 2, 7, 1))
sketch3.addConstraint(Sketcher.Constraint("Coincident", 7, 2, 8, 1))
sketch3.addConstraint(Sketcher.Constraint("Coincident", 8, 2, 9, 1))
sketch3.addConstraint(Sketcher.Constraint("Coincident", 9, 2, 10, 2))
sketch3.addConstraint(Sketcher.Constraint("Coincident", 10, 1, 11, 2))
sketch3.addConstraint(Sketcher.Constraint("Coincident", 11, 1, 0, 1))
sketch3.addConstraint(Sketcher.Constraint("Coincident", 12, 2, 13, 1))
sketch3.addConstraint(Sketcher.Constraint("Coincident", 13, 2, 14, 2))
sketch3.addConstraint(Sketcher.Constraint("Coincident", 14, 1, 15, 2))
sketch3.addConstraint(Sketcher.Constraint("Coincident", 15, 1, 16, 1))
sketch3.addConstraint(Sketcher.Constraint("Coincident", 16, 2, 17, 1))
sketch3.addConstraint(Sketcher.Constraint("Coincident", 17, 2, 18, 1))
sketch3.addConstraint(Sketcher.Constraint("Coincident", 18, 2, 19, 1))
sketch3.addConstraint(Sketcher.Constraint("Coincident", 19, 2, 20, 1))
sketch3.addConstraint(Sketcher.Constraint("Coincident", 20, 2, 21, 1))
sketch3.addConstraint(Sketcher.Constraint("Coincident", 21, 2, 22, 1))
sketch3.addConstraint(Sketcher.Constraint("Coincident", 22, 2, 23, 1))
sketch3.addConstraint(Sketcher.Constraint("Coincident", 23, 2, 12, 1))
sketch3.addConstraint(Sketcher.Constraint("Vertical", 0))
sketch3.addConstraint(Sketcher.Constraint("Vertical", 2))
sketch3.addConstraint(Sketcher.Constraint("Horizontal", 3))
sketch3.addConstraint(Sketcher.Constraint("Horizontal", 6))
sketch3.addConstraint(Sketcher.Constraint("Vertical", 7))
sketch3.addConstraint(Sketcher.Constraint("Vertical", 9))
sketch3.addConstraint(Sketcher.Constraint("Vertical", 13))
sketch3.addConstraint(Sketcher.Constraint("Vertical", 16))
sketch3.addConstraint(Sketcher.Constraint("Vertical", 18))
sketch3.addConstraint(Sketcher.Constraint("Horizontal", 19))
sketch3.addConstraint(Sketcher.Constraint("Horizontal", 22))
sketch3.addConstraint(Sketcher.Constraint("Vertical", 23))
sketch3.addConstraint(Sketcher.Constraint("Equal", 4, 5))
sketch3.addConstraint(Sketcher.Constraint("Equal", 1, 8))
sketch3.addConstraint(Sketcher.Constraint("Equal", 10, 11))
sketch3.addConstraint(Sketcher.Constraint("Equal", 8, 12))
sketch3.addConstraint(Sketcher.Constraint("Equal", 11, 14))
sketch3.addConstraint(Sketcher.Constraint("Equal", 14, 15))
sketch3.addConstraint(Sketcher.Constraint("Equal", 12, 17))
sketch3.addConstraint(Sketcher.Constraint("Equal", 5, 20))
sketch3.addConstraint(Sketcher.Constraint("Equal", 20, 21))
sketch3.addConstraint(Sketcher.Constraint("Symmetric", 8, 3, 12, 3, -1, 1))
sketch3.addConstraint(Sketcher.Constraint("Symmetric", 10, 3, 14, 3, -1, 1))
sketch3.addConstraint(Sketcher.Constraint("Symmetric", 11, 3, 15, 3, -1, 1))
sketch3.addConstraint(Sketcher.Constraint("Symmetric", 1, 3, 17, 3, -1, 1))
sketch3.addConstraint(Sketcher.Constraint("Symmetric", 4, 3, 20, 3, -1, 1))
sketch3.addConstraint(Sketcher.Constraint("Symmetric", 5, 3, 21, 3, -1, 1))
sketch3.addConstraint(Sketcher.Constraint("Symmetric", 2, 2, 18, 2, -1, 1))
sketch3.addConstraint(Sketcher.Constraint("Symmetric", 6, 2, 22, 2, -1, 1))
sketch3.addConstraint(Sketcher.Constraint("Symmetric", 1, 3, 12, 3, -2))
sketch3.addConstraint(Sketcher.Constraint("Symmetric", 11, 3, 14, 3, -2))
sketch3.addConstraint(Sketcher.Constraint("Symmetric", 5, 3, 20, 3, -2))
sketch3.addConstraint(Sketcher.Constraint("Symmetric", 6, 2, 18, 2, -2))
sketch3.addConstraint(Sketcher.Constraint("Horizontal", 6, 2, 9, 2))
sketch3.addConstraint(Sketcher.Constraint("Horizontal", 11, 1, 13, 2))
sketch3.addConstraint(Sketcher.Constraint("Equal", 0, 9))
sketch3.addConstraint(Sketcher.Constraint("Equal", 13, 16))
sketch3.addConstraint(Sketcher.Constraint("DistanceX", 3, 2, 3, 1, Q("10 mm")))
sketch3.addConstraint(Sketcher.Constraint("DistanceX", 0, 2, -1, 1, Q("300 mm")))
sketch3.addConstraint(Sketcher.Constraint("DistanceY", -1, 1, 0, 2, Q("100 mm")))
sketch3.addConstraint(Sketcher.Constraint("Radius", 1, Q("1470.79873 mm")))
sketch3.addConstraint(Sketcher.Constraint("Radius", 4, Q("1470.798349 mm")))
sketch3.addConstraint(Sketcher.Constraint("Radius", 10, Q("493.62987 mm")))
sketch3.addConstraint(Sketcher.Constraint("DistanceY", 0, 1, 0, 2, Q("49.363212 mm")))
sketch3.addConstraint(Sketcher.Constraint("DistanceY", 2, 2, 2, 1, Q("3.467785 mm")))
sketch3.addConstraint(Sketcher.Constraint("DistanceX", -1, 1, 1, 3, Q("12.41202 mm")))
sketch3.addConstraint(Sketcher.Constraint("DistanceX", -1, 1, 4, 3, Q("12.411911 mm")))
sketch3.addConstraint(Sketcher.Constraint("DistanceX", 10, 3, -1, 1, Q("237.996329 mm")))
pad3 = body3.newObject("PartDesign::Pad", "Pad002")
pad3.Profile = sketch3
pad3.Length = 10

doc.recompute()
